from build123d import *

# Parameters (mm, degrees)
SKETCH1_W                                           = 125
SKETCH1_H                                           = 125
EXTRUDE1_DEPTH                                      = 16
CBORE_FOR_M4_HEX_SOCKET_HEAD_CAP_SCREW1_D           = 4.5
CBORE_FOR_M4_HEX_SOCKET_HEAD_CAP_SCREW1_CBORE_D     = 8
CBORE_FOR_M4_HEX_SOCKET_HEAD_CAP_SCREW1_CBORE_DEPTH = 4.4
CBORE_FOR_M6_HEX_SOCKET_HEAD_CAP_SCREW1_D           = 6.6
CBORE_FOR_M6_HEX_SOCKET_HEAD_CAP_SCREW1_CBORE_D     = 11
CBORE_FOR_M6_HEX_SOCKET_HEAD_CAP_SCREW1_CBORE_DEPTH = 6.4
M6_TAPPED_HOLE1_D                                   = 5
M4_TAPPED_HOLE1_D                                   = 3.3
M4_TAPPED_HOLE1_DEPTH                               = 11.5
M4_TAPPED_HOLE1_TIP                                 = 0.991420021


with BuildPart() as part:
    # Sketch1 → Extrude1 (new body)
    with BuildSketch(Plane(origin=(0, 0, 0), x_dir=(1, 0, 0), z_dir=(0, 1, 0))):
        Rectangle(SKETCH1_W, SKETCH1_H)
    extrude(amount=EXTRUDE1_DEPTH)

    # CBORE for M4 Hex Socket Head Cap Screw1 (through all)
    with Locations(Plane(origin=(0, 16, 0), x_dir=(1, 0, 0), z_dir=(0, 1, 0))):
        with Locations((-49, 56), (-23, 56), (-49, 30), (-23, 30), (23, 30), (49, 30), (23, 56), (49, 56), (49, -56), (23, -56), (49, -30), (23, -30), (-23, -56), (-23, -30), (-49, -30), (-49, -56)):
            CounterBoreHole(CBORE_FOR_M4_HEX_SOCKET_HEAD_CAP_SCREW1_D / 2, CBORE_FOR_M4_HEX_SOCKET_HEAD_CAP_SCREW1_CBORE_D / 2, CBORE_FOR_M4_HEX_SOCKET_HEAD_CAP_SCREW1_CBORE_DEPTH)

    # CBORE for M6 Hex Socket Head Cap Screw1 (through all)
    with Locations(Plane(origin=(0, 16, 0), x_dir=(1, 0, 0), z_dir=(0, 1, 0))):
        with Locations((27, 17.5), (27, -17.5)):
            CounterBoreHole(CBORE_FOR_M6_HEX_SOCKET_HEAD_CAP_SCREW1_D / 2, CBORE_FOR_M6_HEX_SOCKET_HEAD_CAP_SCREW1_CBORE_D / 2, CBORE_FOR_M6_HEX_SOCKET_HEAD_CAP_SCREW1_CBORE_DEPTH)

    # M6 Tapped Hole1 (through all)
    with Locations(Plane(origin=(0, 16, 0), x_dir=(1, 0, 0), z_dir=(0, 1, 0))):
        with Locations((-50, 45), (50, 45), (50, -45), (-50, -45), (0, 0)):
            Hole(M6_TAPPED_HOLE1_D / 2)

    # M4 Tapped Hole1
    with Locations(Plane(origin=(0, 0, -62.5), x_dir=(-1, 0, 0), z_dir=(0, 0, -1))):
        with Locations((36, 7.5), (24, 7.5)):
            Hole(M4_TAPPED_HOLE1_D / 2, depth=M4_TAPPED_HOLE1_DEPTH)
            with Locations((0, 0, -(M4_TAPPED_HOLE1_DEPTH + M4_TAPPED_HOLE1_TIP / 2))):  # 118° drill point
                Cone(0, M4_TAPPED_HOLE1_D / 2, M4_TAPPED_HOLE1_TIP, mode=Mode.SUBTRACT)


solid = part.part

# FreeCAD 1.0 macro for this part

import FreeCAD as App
import Part
import Sketcher
from FreeCAD import Vector
Q = App.Units.Quantity


def add_polygon(sketch, points):
    """Adds a closed chain of lines whose ends are joined by coincident constraints."""
    first, n = sketch.GeometryCount, len(points)
    for a, b in zip(points, points[1:] + points[:1]):
        sketch.addGeometry(Part.LineSegment(App.Vector(*a, 0), App.Vector(*b, 0)), False)
    for i in range(n):
        sketch.addConstraint(Sketcher.Constraint("Coincident", first + i, 2, first + (i + 1) % n, 1))

doc = App.newDocument("Part")
params = doc.addObject("Spreadsheet::Sheet", "Params")
for row, (alias, value) in enumerate([
    ("sketch1_width", "125 mm"),
    ("pad1_length", "16 mm"),
    ("sketch2_diameter", "4.5 mm"),
    ("hole_diameter", "4.5 mm"),
    ("hole_cbore_diameter", "8 mm"),
    ("hole_cbore_depth", "4.4 mm"),
    ("sketch3_diameter", "6.6 mm"),
    ("hole2_diameter", "6.6 mm"),
    ("hole2_cbore_diameter", "11 mm"),
    ("hole2_cbore_depth", "6.4 mm"),
    ("sketch4_diameter", "5 mm"),
    ("hole3_diameter", "5 mm"),
    ("sketch5_diameter", "3.3 mm"),
    ("hole4_diameter", "3.3 mm"),
    ("hole4_depth", "11.5 mm"),
], start=1):
    params.set(f"A{row}", alias)
    params.set(f"B{row}", "=" + value)
    params.setAlias(f"B{row}", alias)

body = doc.addObject("PartDesign::Body", "Body")

# Sketch on XZ plane
sketch1 = body.newObject("Sketcher::SketchObject", "Sketch")
sketch1.AttachmentSupport = (doc.getObject("XZ_Plane"), [""])
sketch1.MapMode = "FlatFace"
add_polygon(sketch1, [(-62.5, -62.5), (-62.5, 62.5), (62.5, 62.5), (62.5, -62.5)])  # lines 0-3
sketch1.addConstraint(Sketcher.Constraint("Vertical", 0))
sketch1.addConstraint(Sketcher.Constraint("Horizontal", 1))
sketch1.addConstraint(Sketcher.Constraint("Vertical", 2))
sketch1.addConstraint(Sketcher.Constraint("Horizontal", 3))
sketch1.addConstraint(Sketcher.Constraint("Symmetric", 0, 2, 2, 2, -1, 1))
sketch1.addConstraint(Sketcher.Constraint("Equal", 3, 0))
sketch1.addConstraint(Sketcher.Constraint("DistanceX", 1, 1, 1, 2, Q("125 mm")))
sketch1.setExpression("Constraints[10]", "Params.sketch1_width")
pad1 = body.newObject("PartDesign::Pad", "Pad")
pad1.Profile = sketch1
pad1.setExpression("Length", "Params.pad1_length")
pad1.Reversed = True

# Sketch on XZ plane
sketch2 = body.newObject("Sketcher::SketchObject", "Sketch001")
sketch2.AttachmentSupport = (doc.getObject("XZ_Plane"), [""])
sketch2.MapMode = "FlatFace"
sketch2.AttachmentOffset = App.Placement(Vector(0, 0, -16), App.Rotation())
sketch2.addGeometry(Part.Circle(Vector(-49, -56, 0), Vector(0, 0, 1), 2.25), False)
sketch2.addGeometry(Part.Circle(Vector(-23, -56, 0), Vector(0, 0, 1), 2.25), False)
sketch2.addGeometry(Part.Circle(Vector(-49, -30, 0), Vector(0, 0, 1), 2.25), False)
sketch2.addGeometry(Part.Circle(Vector(-23, -30, 0), Vector(0, 0, 1), 2.25), False)
sketch2.addGeometry(Part.Circle(Vector(23, -30, 0), Vector(0, 0, 1), 2.25), False)
sketch2.addGeometry(Part.Circle(Vector(49, -30, 0), Vector(0, 0, 1), 2.25), False)
sketch2.addGeometry(Part.Circle(Vector(23, -56, 0), Vector(0, 0, 1), 2.25), False)
sketch2.addGeometry(Part.Circle(Vector(49, -56, 0), Vector(0, 0, 1), 2.25), False)
sketch2.addGeometry(Part.Circle(Vector(49, 56, 0), Vector(0, 0, 1), 2.25), False)
sketch2.addGeometry(Part.Circle(Vector(23, 56, 0), Vector(0, 0, 1), 2.25), False)
sketch2.addGeometry(Part.Circle(Vector(49, 30, 0), Vector(0, 0, 1), 2.25), False)
sketch2.addGeometry(Part.Circle(Vector(23, 30, 0), Vector(0, 0, 1), 2.25), False)
sketch2.addGeometry(Part.Circle(Vector(-23, 56, 0), Vector(0, 0, 1), 2.25), False)
sketch2.addGeometry(Part.Circle(Vector(-23, 30, 0), Vector(0, 0, 1), 2.25), False)
sketch2.addGeometry(Part.Circle(Vector(-49, 30, 0), Vector(0, 0, 1), 2.25), False)
sketch2.addGeometry(Part.Circle(Vector(-49, 56, 0), Vector(0, 0, 1), 2.25), False)
sketch2.addConstraint(Sketcher.Constraint("Equal", 0, 1))
sketch2.addConstraint(Sketcher.Constraint("Equal", 1, 2))
sketch2.addConstraint(Sketcher.Constraint("Equal", 2, 3))
sketch2.addConstraint(Sketcher.Constraint("Equal", 3, 4))
sketch2.addConstraint(Sketcher.Constraint("Equal", 4, 5))
sketch2.addConstraint(Sketcher.Constraint("Equal", 5, 6))
sketch2.addConstraint(Sketcher.Constraint("Equal", 6, 7))
sketch2.addConstraint(Sketcher.Constraint("Equal", 7, 8))
sketch2.addConstraint(Sketcher.Constraint("Equal", 8, 9))
sketch2.addConstraint(Sketcher.Constraint("Equal", 9, 10))
sketch2.addConstraint(Sketcher.Constraint("Equal", 10, 11))
sketch2.addConstraint(Sketcher.Constraint("Equal", 11, 12))
sketch2.addConstraint(Sketcher.Constraint("Equal", 12, 13))
sketch2.addConstraint(Sketcher.Constraint("Equal", 13, 14))
sketch2.addConstraint(Sketcher.Constraint("Equal", 14, 15))
sketch2.addConstraint(Sketcher.Constraint("Symmetric", 0, 3, 8, 3, -1, 1))
sketch2.addConstraint(Sketcher.Constraint("Symmetric", 1, 3, 9, 3, -1, 1))
sketch2.addConstraint(Sketcher.Constraint("Symmetric", 2, 3, 10, 3, -1, 1))
sketch2.addConstraint(Sketcher.Constraint("Symmetric", 3, 3, 11, 3, -1, 1))
sketch2.addConstraint(Sketcher.Constraint("Symmetric", 6, 3, 12, 3, -1, 1))
sketch2.addConstraint(Sketcher.Constraint("Symmetric", 4, 3, 13, 3, -1, 1))
sketch2.addConstraint(Sketcher.Constraint("Symmetric", 5, 3, 14, 3, -1, 1))
sketch2.addConstraint(Sketcher.Constraint("Symmetric", 7, 3, 15, 3, -1, 1))
sketch2.addConstraint(Sketcher.Constraint("Symmetric", 3, 3, 4, 3, -2))
sketch2.addConstraint(Sketcher.Constraint("Symmetric", 2, 3, 5, 3, -2))
sketch2.addConstraint(Sketcher.Constraint("Symmetric", 1, 3, 6, 3, -2))
sketch2.addConstraint(Sketcher.Constraint("Symmetric", 0, 3, 7, 3, -2))
sketch2.addConstraint(Sketcher.Constraint("Horizontal", 0, 3, 1, 3))
sketch2.addConstraint(Sketcher.Constraint("Horizontal", 2, 3, 3, 3))
sketch2.addConstraint(Sketcher.Constraint("Vertical", 0, 3, 2, 3))
sketch2.addConstraint(Sketcher.Constraint("Vertical", 1, 3, 3, 3))
sketch2.addConstraint(Sketcher.Constraint("Diameter", 0, Q("4.5 mm")))
sketch2.addConstraint(Sketcher.Constraint("DistanceX", 0, 3, -1, 1, Q("49 mm")))
sketch2.addConstraint(Sketcher.Constraint("DistanceY", 0, 3, -1, 1, Q("56 mm")))
sketch2.addConstraint(Sketcher.Constraint("DistanceX", 1, 3, -1, 1, Q("23 mm")))
sketch2.addConstraint(Sketcher.Constraint("DistanceY", 2, 3, -1, 1, Q("30 mm")))
sketch2.setExpression("Constraints[31]", "Params.sketch2_diameter")
doc.recompute()
hole = body.newObject("PartDesign::Hole", "Hole")
hole.Profile = sketch2
hole.ThreadType = "None"
hole.setExpression("Diameter", "Params.hole_diameter")
hole.DepthType = "ThroughAll"
hole.HoleCutType = "Counterbore"
hole.setExpression("HoleCutDiameter", "Params.hole_cbore_diameter")
hole.setExpression("HoleCutDepth", "Params.hole_cbore_depth")
hole.Reversed = True

# Sketch on XZ plane
sketch3 = body.newObject("Sketcher::SketchObject", "Sketch002")
sketch3.AttachmentSupport = (doc.getObject("XZ_Plane"), [""])
sketch3.MapMode = "FlatFace"
sketch3.AttachmentOffset = App.Placement(Vector(0, 0, -16), App.Rotation())
sketch3.addGeometry(Part.Circle(Vector(27, -17.5, 0), Vector(0, 0, 1), 3.3), False)
sketch3.addGeometry(Part.Circle(Vector(27, 17.5, 0), Vector(0, 0, 1), 3.3), False)
sketch3.addConstraint(Sketcher.Constraint("Equal", 0, 1))
sketch3.addConstraint(Sketcher.Constraint("Symmetric", 0, 3, 1, 3, -1))
sketch3.addConstraint(Sketcher.Constraint("Diameter", 0, Q("6.6 mm")))
sketch3.addConstraint(Sketcher.Constraint("DistanceX", -1, 1, 0, 3, Q("27 mm")))
sketch3.addConstraint(Sketcher.Constraint("DistanceY", 0, 3, 1, 3, Q("35 mm")))
sketch3.setExpression("Constraints[2]", "Params.sketch3_diameter")
doc.recompute()
hole2 = body.newObject("PartDesign::Hole", "Hole001")
hole2.Profile = sketch3
hole2.ThreadType = "None"
hole2.setExpression("Diameter", "Params.hole2_diameter")
hole2.DepthType = "ThroughAll"
hole2.HoleCutType = "Counterbore"
hole2.setExpression("HoleCutDiameter", "Params.hole2_cbore_diameter")
hole2.setExpression("HoleCutDepth", "Params.hole2_cbore_depth")
hole2.Reversed = True

# Sketch on XZ plane
sketch4 = body.newObject("Sketcher::SketchObject", "Sketch003")
sketch4.AttachmentSupport = (doc.getObject("XZ_Plane"), [""])
sketch4.MapMode = "FlatFace"
sketch4.AttachmentOffset = App.Placement(Vector(0, 0, -16), App.Rotation())
sketch4.addGeometry(Part.Circle(Vector(-50, -45, 0), Vector(0, 0, 1), 2.5), False)
sketch4.addGeometry(Part.Circle(Vector(50, -45, 0), Vector(0, 0, 1), 2.5), False)
sketch4.addGeometry(Part.Circle(Vector(50, 45, 0), Vector(0, 0, 1), 2.5), False)
sketch4.addGeometry(Part.Circle(Vector(-50, 45, 0), Vector(0, 0, 1), 2.5), False)
sketch4.addGeometry(Part.Circle(Vector(0, 0, 0), Vector(0, 0, 1), 2.5), False)
sketch4.addConstraint(Sketcher.Constraint("Coincident", 4, 3, -1, 1))
sketch4.addConstraint(Sketcher.Constraint("Equal", 0, 1))
sketch4.addConstraint(Sketcher.Constraint("Equal", 1, 2))
sketch4.addConstraint(Sketcher.Constraint("Equal", 2, 3))
sketch4.addConstraint(Sketcher.Constraint("Equal", 3, 4))
sketch4.addConstraint(Sketcher.Constraint("Symmetric", 0, 3, 2, 3, -1, 1))
sketch4.addConstraint(Sketcher.Constraint("Symmetric", 1, 3, 3, 3, -1, 1))
sketch4.addConstraint(Sketcher.Constraint("Symmetric", 0, 3, 1, 3, -2))
sketch4.addConstraint(Sketcher.Constraint("Diameter", 0, Q("5 mm")))
sketch4.addConstraint(Sketcher.Constraint("DistanceX", 0, 3, -1, 1, Q("50 mm")))
sketch4.addConstraint(Sketcher.Constraint("DistanceY", 0, 3, -1, 1, Q("45 mm")))
sketch4.setExpression("Constraints[8]", "Params.sketch4_diameter")
doc.recompute()
hole3 = body.newObject("PartDesign::Hole", "Hole002")
hole3.Profile = sketch4
hole3.ThreadType = "None"
hole3.setExpression("Diameter", "Params.hole3_diameter")
hole3.DepthType = "ThroughAll"
hole3.Reversed = True

# Sketch on XY plane
sketch5 = body.newObject("Sketcher::SketchObject", "Sketch004")
sketch5.AttachmentSupport = (doc.getObject("XY_Plane"), [""])
sketch5.MapMode = "FlatFace"
sketch5.AttachmentOffset = App.Placement(Vector(0, 0, -62.5), App.Rotation())
sketch5.addGeometry(Part.Circle(Vector(-36, 7.5, 0), Vector(0, 0, 1), 1.65), False)
sketch5.addGeometry(Part.Circle(Vector(-24, 7.5, 0), Vector(0, 0, 1), 1.65), False)
sketch5.addConstraint(Sketcher.Constraint("Equal", 0, 1))
sketch5.addConstraint(Sketcher.Constraint("Horizontal", 0, 3, 1, 3))
sketch5.addConstraint(Sketcher.Constraint("Diameter", 0, Q("3.3 mm")))
sketch5.addConstraint(Sketcher.Constraint("DistanceX", 0, 3, -1, 1, Q("36 mm")))
sketch5.addConstraint(Sketcher.Constraint("DistanceX", 1, 3, -1, 1, Q("24 mm")))
sketch5.addConstraint(Sketcher.Constraint("DistanceY", -1, 1, 0, 3, Q("7.5 mm")))
sketch5.setExpression("Constraints[2]", "Params.sketch5_diameter")
doc.recompute()
hole4 = body.newObject("PartDesign::Hole", "Hole003")
hole4.Profile = sketch5
hole4.ThreadType = "None"
hole4.setExpression("Diameter", "Params.hole4_diameter")
hole4.DepthType = "Dimension"
hole4.setExpression("Depth", "Params.hole4_depth")
hole4.DrillPoint = "Angled"
hole4.DrillPointAngle = 118
hole4.Reversed = True

doc.recompute()
